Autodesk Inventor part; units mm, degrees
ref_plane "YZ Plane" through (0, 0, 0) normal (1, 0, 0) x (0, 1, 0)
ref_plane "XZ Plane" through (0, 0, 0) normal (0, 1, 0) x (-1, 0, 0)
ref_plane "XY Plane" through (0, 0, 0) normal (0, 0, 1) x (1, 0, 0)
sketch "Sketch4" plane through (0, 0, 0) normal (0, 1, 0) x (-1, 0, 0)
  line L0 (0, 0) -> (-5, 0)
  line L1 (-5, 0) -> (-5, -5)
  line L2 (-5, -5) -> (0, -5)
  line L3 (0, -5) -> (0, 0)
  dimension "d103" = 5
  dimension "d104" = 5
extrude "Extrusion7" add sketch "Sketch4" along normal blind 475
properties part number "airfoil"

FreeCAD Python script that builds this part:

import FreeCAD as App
import Part
import Sketcher
from FreeCAD import Vector

doc = App.newDocument("Part")
params = doc.addObject("Spreadsheet::Sheet", "Params")
for row, (alias, value) in enumerate([
    ("sketch1_width", "5 mm"),
    ("pad1_length", "475 mm"),
], start=1):
    params.set(f"A{row}", alias)
    params.set(f"B{row}", "=" + value)
    params.setAlias(f"B{row}", alias)

body = doc.addObject("PartDesign::Body", "Body")

# Sketch on XZ plane
sketch1 = doc.addObject("Sketcher::SketchObject", "Sketch")
body.addObject(sketch1)
sketch1.AttachmentSupport = (doc.XZ_Plane, [""])
sketch1.MapMode = "FlatFace"
sketch1.addGeometry([
    Part.LineSegment(Vector(0, -5, 0), Vector(0, 0, 0)),
    Part.LineSegment(Vector(0, 0, 0), Vector(5, 0, 0)),
    Part.LineSegment(Vector(5, 0, 0), Vector(5, -5, 0)),
    Part.LineSegment(Vector(5, -5, 0), Vector(0, -5, 0)),
], False)
sketch1.addConstraint([
    Sketcher.Constraint("Coincident", 0, 2, 1, 1),
    Sketcher.Constraint("Coincident", 1, 2, 2, 1),
    Sketcher.Constraint("Coincident", 2, 2, 3, 1),
    Sketcher.Constraint("Coincident", 3, 2, 0, 1),
    Sketcher.Constraint("Vertical", 0),
    Sketcher.Constraint("Horizontal", 1),
    Sketcher.Constraint("Vertical", 2),
    Sketcher.Constraint("Horizontal", 3),
    Sketcher.Constraint("Coincident", 0, 2, -1, 1),
    Sketcher.Constraint("Equal", 3, 0),
    Sketcher.Constraint("DistanceX", 1, 1, 1, 2, 5.0),
])
sketch1.setExpression("Constraints[10]", "Params.sketch1_width")
pad1 = doc.addObject("PartDesign::Pad", "Pad")
body.addObject(pad1)
pad1.Profile = sketch1
pad1.setExpression("Length", "Params.pad1_length")
pad1.Reversed = True

doc.recompute()
